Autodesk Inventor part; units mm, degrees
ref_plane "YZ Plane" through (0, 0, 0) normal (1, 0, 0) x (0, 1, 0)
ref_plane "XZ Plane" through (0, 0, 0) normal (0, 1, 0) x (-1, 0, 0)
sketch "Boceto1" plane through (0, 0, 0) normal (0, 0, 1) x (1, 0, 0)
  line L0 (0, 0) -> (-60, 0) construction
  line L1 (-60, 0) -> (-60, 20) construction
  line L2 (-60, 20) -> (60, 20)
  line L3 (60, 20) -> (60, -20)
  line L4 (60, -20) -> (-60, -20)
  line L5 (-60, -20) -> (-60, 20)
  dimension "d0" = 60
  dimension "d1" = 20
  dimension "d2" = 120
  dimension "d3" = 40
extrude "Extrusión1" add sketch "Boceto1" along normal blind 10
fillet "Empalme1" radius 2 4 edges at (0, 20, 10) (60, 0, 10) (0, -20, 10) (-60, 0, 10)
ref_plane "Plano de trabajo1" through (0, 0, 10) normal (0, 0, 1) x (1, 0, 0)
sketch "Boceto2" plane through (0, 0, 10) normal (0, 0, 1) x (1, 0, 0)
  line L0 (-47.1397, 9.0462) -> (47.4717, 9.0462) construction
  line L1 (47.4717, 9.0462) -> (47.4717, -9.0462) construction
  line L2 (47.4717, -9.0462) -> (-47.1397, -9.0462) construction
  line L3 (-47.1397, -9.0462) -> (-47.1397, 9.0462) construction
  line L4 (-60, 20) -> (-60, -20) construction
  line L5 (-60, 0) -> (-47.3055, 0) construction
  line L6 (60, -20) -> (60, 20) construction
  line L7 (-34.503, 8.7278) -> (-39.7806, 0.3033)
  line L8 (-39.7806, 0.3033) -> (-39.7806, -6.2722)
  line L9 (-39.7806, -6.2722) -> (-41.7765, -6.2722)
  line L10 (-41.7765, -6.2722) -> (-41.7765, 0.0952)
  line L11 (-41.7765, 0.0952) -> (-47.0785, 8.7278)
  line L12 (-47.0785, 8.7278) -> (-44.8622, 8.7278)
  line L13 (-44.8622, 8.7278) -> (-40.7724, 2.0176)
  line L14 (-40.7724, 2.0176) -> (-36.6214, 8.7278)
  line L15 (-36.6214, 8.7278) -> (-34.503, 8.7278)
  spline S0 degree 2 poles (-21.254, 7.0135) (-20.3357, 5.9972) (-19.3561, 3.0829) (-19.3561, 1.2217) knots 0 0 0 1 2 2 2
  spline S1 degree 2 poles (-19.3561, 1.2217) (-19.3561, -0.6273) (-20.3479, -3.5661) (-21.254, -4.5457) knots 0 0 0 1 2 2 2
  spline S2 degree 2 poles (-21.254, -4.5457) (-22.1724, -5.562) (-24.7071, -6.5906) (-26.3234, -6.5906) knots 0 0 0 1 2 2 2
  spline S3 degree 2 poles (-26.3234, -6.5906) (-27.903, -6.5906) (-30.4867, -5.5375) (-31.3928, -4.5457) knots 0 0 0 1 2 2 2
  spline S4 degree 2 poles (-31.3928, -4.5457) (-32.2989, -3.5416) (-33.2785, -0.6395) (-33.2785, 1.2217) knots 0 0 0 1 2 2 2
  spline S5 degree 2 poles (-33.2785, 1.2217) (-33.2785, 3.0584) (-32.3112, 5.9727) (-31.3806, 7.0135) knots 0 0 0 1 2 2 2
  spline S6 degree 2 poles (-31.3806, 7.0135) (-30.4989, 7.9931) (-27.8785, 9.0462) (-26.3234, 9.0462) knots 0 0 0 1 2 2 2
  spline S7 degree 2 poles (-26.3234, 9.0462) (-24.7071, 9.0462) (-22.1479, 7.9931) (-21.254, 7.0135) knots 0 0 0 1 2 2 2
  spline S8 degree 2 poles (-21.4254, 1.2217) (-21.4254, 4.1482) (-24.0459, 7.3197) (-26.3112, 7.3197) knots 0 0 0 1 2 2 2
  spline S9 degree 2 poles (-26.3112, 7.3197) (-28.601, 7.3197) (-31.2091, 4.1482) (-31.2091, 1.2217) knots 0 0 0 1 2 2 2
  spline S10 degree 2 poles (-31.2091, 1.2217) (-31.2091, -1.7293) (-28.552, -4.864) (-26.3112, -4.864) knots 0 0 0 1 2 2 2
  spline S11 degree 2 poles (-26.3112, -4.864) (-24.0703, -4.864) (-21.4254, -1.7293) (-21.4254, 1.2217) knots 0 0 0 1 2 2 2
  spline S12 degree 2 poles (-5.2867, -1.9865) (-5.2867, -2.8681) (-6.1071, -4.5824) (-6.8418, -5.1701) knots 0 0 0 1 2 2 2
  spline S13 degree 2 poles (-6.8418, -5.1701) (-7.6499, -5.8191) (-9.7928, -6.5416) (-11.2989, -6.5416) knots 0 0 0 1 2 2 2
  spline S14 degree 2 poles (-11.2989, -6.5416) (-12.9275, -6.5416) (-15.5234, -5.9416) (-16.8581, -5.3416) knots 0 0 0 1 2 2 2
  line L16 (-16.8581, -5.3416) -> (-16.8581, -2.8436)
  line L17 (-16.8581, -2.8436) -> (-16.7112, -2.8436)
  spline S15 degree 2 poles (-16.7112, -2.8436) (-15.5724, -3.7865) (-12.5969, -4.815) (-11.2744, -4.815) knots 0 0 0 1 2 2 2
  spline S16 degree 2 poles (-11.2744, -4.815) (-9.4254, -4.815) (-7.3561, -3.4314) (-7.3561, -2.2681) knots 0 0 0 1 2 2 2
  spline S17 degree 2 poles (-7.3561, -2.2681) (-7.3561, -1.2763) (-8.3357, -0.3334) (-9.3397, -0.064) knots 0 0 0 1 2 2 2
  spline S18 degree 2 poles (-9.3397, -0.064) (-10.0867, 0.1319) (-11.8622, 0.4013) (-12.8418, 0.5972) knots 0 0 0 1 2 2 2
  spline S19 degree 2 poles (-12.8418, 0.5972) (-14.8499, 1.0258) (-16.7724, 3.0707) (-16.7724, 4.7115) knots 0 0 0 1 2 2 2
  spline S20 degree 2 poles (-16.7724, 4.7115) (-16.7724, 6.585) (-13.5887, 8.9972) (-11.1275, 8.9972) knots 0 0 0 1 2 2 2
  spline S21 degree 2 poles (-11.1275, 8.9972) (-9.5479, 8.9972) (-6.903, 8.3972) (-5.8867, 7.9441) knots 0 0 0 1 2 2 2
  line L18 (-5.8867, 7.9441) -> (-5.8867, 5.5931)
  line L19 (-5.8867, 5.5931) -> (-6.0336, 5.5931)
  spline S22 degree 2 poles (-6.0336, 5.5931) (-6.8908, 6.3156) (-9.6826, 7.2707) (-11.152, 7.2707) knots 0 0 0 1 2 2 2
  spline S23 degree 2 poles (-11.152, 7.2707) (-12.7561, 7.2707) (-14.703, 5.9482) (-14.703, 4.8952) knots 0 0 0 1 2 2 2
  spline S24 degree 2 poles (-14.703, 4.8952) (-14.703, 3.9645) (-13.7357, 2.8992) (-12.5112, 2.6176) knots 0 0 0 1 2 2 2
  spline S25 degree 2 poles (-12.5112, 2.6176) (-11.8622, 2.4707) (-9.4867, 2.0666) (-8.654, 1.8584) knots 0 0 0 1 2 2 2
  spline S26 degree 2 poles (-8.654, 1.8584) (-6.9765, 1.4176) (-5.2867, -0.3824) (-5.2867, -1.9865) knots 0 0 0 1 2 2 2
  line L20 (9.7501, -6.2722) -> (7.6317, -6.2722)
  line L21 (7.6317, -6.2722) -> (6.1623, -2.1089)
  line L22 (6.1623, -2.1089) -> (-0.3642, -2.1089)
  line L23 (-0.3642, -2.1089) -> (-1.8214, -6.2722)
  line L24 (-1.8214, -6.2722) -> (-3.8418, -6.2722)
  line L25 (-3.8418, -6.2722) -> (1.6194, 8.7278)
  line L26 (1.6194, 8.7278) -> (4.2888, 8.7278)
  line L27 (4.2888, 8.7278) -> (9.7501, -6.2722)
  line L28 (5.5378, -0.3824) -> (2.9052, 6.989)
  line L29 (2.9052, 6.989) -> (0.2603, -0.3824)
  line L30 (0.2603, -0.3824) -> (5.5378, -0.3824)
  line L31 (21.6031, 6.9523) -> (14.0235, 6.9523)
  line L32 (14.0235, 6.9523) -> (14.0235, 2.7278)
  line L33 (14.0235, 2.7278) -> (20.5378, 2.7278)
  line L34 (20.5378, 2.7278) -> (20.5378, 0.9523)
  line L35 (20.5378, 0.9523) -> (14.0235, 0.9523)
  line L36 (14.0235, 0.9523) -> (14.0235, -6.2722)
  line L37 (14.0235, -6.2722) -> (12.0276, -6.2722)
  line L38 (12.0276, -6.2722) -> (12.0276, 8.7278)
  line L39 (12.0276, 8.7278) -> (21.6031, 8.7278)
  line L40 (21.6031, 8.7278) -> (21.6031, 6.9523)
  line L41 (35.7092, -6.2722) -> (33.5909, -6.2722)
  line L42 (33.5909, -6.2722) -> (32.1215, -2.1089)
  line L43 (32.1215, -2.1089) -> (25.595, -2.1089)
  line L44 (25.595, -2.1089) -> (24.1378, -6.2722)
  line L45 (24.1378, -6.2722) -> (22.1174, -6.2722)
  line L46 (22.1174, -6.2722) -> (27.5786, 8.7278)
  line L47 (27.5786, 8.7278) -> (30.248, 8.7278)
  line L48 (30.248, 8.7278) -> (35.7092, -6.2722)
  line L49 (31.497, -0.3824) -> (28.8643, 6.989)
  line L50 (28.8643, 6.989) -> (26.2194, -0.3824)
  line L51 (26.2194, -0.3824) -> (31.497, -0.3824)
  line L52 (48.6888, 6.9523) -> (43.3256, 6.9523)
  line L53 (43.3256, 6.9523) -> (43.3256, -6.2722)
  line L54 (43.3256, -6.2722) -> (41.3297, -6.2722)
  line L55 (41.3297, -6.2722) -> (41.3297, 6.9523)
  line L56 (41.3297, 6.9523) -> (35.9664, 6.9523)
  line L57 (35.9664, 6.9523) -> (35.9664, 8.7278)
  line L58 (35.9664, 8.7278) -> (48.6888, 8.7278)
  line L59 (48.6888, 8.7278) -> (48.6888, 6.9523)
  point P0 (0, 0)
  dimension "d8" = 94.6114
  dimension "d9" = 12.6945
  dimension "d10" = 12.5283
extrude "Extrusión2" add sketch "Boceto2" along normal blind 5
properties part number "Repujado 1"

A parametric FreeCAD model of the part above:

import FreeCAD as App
import Part
import Sketcher
from FreeCAD import Vector
Q = App.Units.Quantity


def edges_at(feature, points):
    """Names of the edges that pass closest to the given points."""
    edges = feature.Shape.Edges
    near = lambda p: min(range(len(edges)), key=lambda i: edges[i].distToShape(Part.Vertex(*p))[0])
    return sorted({f"Edge{near(p) + 1}" for p in points})


def add_polygon(sketch, points):
    """Adds a closed chain of lines whose ends are joined by coincident constraints."""
    first, n = sketch.GeometryCount, len(points)
    for a, b in zip(points, points[1:] + points[:1]):
        sketch.addGeometry(Part.LineSegment(App.Vector(*a, 0), App.Vector(*b, 0)), False)
    for i in range(n):
        sketch.addConstraint(Sketcher.Constraint("Coincident", first + i, 2, first + (i + 1) % n, 1))

doc = App.newDocument("Part")
body = doc.addObject("PartDesign::Body", "Body")

# Sketch on XY plane
sketch1 = body.newObject("Sketcher::SketchObject", "Sketch")
sketch1.AttachmentSupport = (doc.getObject("XY_Plane"), [""])
sketch1.MapMode = "FlatFace"
add_polygon(sketch1, [(60, 20), (-60, 20), (-60, -20), (60, -20)])  # lines 0-3
sketch1.addConstraint(Sketcher.Constraint("Horizontal", 0))
sketch1.addConstraint(Sketcher.Constraint("Vertical", 1))
sketch1.addConstraint(Sketcher.Constraint("Horizontal", 2))
sketch1.addConstraint(Sketcher.Constraint("Vertical", 3))
sketch1.addConstraint(Sketcher.Constraint("Symmetric", 0, 2, 2, 2, -1, 1))
sketch1.addConstraint(Sketcher.Constraint("DistanceX", 0, 2, 0, 1, 120.0))
sketch1.addConstraint(Sketcher.Constraint("DistanceY", 1, 2, 1, 1, 40.0))
pad1 = body.newObject("PartDesign::Pad", "Pad")
pad1.Profile = sketch1
pad1.Length = 10
doc.recompute()

fillet = body.newObject("PartDesign::Fillet", "Fillet")
fillet.Base = (pad1, edges_at(pad1, [
    (0, 20, 10),
    (60, 0, 10),
    (0, -20, 10),
    (-60, 0, 10),
]))
fillet.Radius = 2

# Sketch on XY plane
sketch2 = body.newObject("Sketcher::SketchObject", "Sketch001")
sketch2.AttachmentSupport = (doc.getObject("XY_Plane"), [""])
sketch2.MapMode = "FlatFace"
sketch2.AttachmentOffset = App.Placement(Vector(0, 0, 10), App.Rotation())
add_polygon(sketch2, [(-39.7806, 0.3033), (-34.503, 8.7278), (-36.6214, 8.7278), (-40.7724, 2.0176), (-44.8622, 8.7278), (-47.0785, 8.7278), (-41.7765, 0.0952), (-41.7765, -6.2722), (-39.7806, -6.2722)])  # lines 0-8
sketch2.addGeometry(Part.BSplineCurve([Vector(-21.254, 7.0135, 0), Vector(-20.3357, 5.9972, 0), Vector(-19.3561, 3.0829, 0), Vector(-19.3561, 1.2217, 0)], [3, 1, 3], [0, 1, 2], False, 2, [1, 1, 1, 1], False), False)  # 9
sketch2.addGeometry(Part.BSplineCurve([Vector(-26.3234, 9.0462, 0), Vector(-24.7071, 9.0462, 0), Vector(-22.1479, 7.9931, 0), Vector(-21.254, 7.0135, 0)], [3, 1, 3], [0, 1, 2], False, 2, [1, 1, 1, 1], False), False)  # 10
sketch2.addGeometry(Part.BSplineCurve([Vector(-31.3806, 7.0135, 0), Vector(-30.4989, 7.9931, 0), Vector(-27.8785, 9.0462, 0), Vector(-26.3234, 9.0462, 0)], [3, 1, 3], [0, 1, 2], False, 2, [1, 1, 1, 1], False), False)  # 11
sketch2.addGeometry(Part.BSplineCurve([Vector(-33.2785, 1.2217, 0), Vector(-33.2785, 3.0584, 0), Vector(-32.3112, 5.9727, 0), Vector(-31.3806, 7.0135, 0)], [3, 1, 3], [0, 1, 2], False, 2, [1, 1, 1, 1], False), False)  # 12
sketch2.addGeometry(Part.BSplineCurve([Vector(-31.3928, -4.5457, 0), Vector(-32.2989, -3.5416, 0), Vector(-33.2785, -0.6395, 0), Vector(-33.2785, 1.2217, 0)], [3, 1, 3], [0, 1, 2], False, 2, [1, 1, 1, 1], False), False)  # 13
sketch2.addGeometry(Part.BSplineCurve([Vector(-26.3234, -6.5906, 0), Vector(-27.903, -6.5906, 0), Vector(-30.4867, -5.5375, 0), Vector(-31.3928, -4.5457, 0)], [3, 1, 3], [0, 1, 2], False, 2, [1, 1, 1, 1], False), False)  # 14
sketch2.addGeometry(Part.BSplineCurve([Vector(-21.254, -4.5457, 0), Vector(-22.1724, -5.562, 0), Vector(-24.7071, -6.5906, 0), Vector(-26.3234, -6.5906, 0)], [3, 1, 3], [0, 1, 2], False, 2, [1, 1, 1, 1], False), False)  # 15
sketch2.addGeometry(Part.BSplineCurve([Vector(-19.3561, 1.2217, 0), Vector(-19.3561, -0.6273, 0), Vector(-20.3479, -3.5661, 0), Vector(-21.254, -4.5457, 0)], [3, 1, 3], [0, 1, 2], False, 2, [1, 1, 1, 1], False), False)  # 16
sketch2.addGeometry(Part.BSplineCurve([Vector(-21.4254, 1.2217, 0), Vector(-21.4254, 4.1482, 0), Vector(-24.0459, 7.3197, 0), Vector(-26.3112, 7.3197, 0)], [3, 1, 3], [0, 1, 2], False, 2, [1, 1, 1, 1], False), False)  # 17
sketch2.addGeometry(Part.BSplineCurve([Vector(-26.3112, -4.864, 0), Vector(-24.0703, -4.864, 0), Vector(-21.4254, -1.7293, 0), Vector(-21.4254, 1.2217, 0)], [3, 1, 3], [0, 1, 2], False, 2, [1, 1, 1, 1], False), False)  # 18
sketch2.addGeometry(Part.BSplineCurve([Vector(-31.2091, 1.2217, 0), Vector(-31.2091, -1.7293, 0), Vector(-28.552, -4.864, 0), Vector(-26.3112, -4.864, 0)], [3, 1, 3], [0, 1, 2], False, 2, [1, 1, 1, 1], False), False)  # 19
sketch2.addGeometry(Part.BSplineCurve([Vector(-26.3112, 7.3197, 0), Vector(-28.601, 7.3197, 0), Vector(-31.2091, 4.1482, 0), Vector(-31.2091, 1.2217, 0)], [3, 1, 3], [0, 1, 2], False, 2, [1, 1, 1, 1], False), False)  # 20
sketch2.addGeometry(Part.BSplineCurve([Vector(-5.2867, -1.9865, 0), Vector(-5.2867, -2.8681, 0), Vector(-6.1071, -4.5824, 0), Vector(-6.8418, -5.1701, 0)], [3, 1, 3], [0, 1, 2], False, 2, [1, 1, 1, 1], False), False)  # 21
sketch2.addGeometry(Part.BSplineCurve([Vector(-8.654, 1.8584, 0), Vector(-6.9765, 1.4176, 0), Vector(-5.2867, -0.3824, 0), Vector(-5.2867, -1.9865, 0)], [3, 1, 3], [0, 1, 2], False, 2, [1, 1, 1, 1], False), False)  # 22
sketch2.addGeometry(Part.BSplineCurve([Vector(-12.5112, 2.6176, 0), Vector(-11.8622, 2.4707, 0), Vector(-9.4867, 2.0666, 0), Vector(-8.654, 1.8584, 0)], [3, 1, 3], [0, 1, 2], False, 2, [1, 1, 1, 1], False), False)  # 23
sketch2.addGeometry(Part.BSplineCurve([Vector(-14.703, 4.8952, 0), Vector(-14.703, 3.9645, 0), Vector(-13.7357, 2.8992, 0), Vector(-12.5112, 2.6176, 0)], [3, 1, 3], [0, 1, 2], False, 2, [1, 1, 1, 1], False), False)  # 24
sketch2.addGeometry(Part.BSplineCurve([Vector(-11.152, 7.2707, 0), Vector(-12.7561, 7.2707, 0), Vector(-14.703, 5.9482, 0), Vector(-14.703, 4.8952, 0)], [3, 1, 3], [0, 1, 2], False, 2, [1, 1, 1, 1], False), False)  # 25
sketch2.addGeometry(Part.BSplineCurve([Vector(-6.0336, 5.5931, 0), Vector(-6.8908, 6.3156, 0), Vector(-9.6826, 7.2707, 0), Vector(-11.152, 7.2707, 0)], [3, 1, 3], [0, 1, 2], False, 2, [1, 1, 1, 1], False), False)  # 26
sketch2.addGeometry(Part.LineSegment(Vector(-6.0336, 5.5931, 0), Vector(-5.8867, 5.5931, 0)), False)  # 27
sketch2.addGeometry(Part.LineSegment(Vector(-5.8867, 5.5931, 0), Vector(-5.8867, 7.9441, 0)), False)  # 28
sketch2.addGeometry(Part.BSplineCurve([Vector(-11.1275, 8.9972, 0), Vector(-9.5479, 8.9972, 0), Vector(-6.903, 8.3972, 0), Vector(-5.8867, 7.9441, 0)], [3, 1, 3], [0, 1, 2], False, 2, [1, 1, 1, 1], False), False)  # 29
sketch2.addGeometry(Part.BSplineCurve([Vector(-16.7724, 4.7115, 0), Vector(-16.7724, 6.585, 0), Vector(-13.5887, 8.9972, 0), Vector(-11.1275, 8.9972, 0)], [3, 1, 3], [0, 1, 2], False, 2, [1, 1, 1, 1], False), False)  # 30
sketch2.addGeometry(Part.BSplineCurve([Vector(-12.8418, 0.5972, 0), Vector(-14.8499, 1.0258, 0), Vector(-16.7724, 3.0707, 0), Vector(-16.7724, 4.7115, 0)], [3, 1, 3], [0, 1, 2], False, 2, [1, 1, 1, 1], False), False)  # 31
sketch2.addGeometry(Part.BSplineCurve([Vector(-9.3397, -0.064, 0), Vector(-10.0867, 0.1319, 0), Vector(-11.8622, 0.4013, 0), Vector(-12.8418, 0.5972, 0)], [3, 1, 3], [0, 1, 2], False, 2, [1, 1, 1, 1], False), False)  # 32
sketch2.addGeometry(Part.BSplineCurve([Vector(-7.3561, -2.2681, 0), Vector(-7.3561, -1.2763, 0), Vector(-8.3357, -0.3334, 0), Vector(-9.3397, -0.064, 0)], [3, 1, 3], [0, 1, 2], False, 2, [1, 1, 1, 1], False), False)  # 33
sketch2.addGeometry(Part.BSplineCurve([Vector(-11.2744, -4.815, 0), Vector(-9.4254, -4.815, 0), Vector(-7.3561, -3.4314, 0), Vector(-7.3561, -2.2681, 0)], [3, 1, 3], [0, 1, 2], False, 2, [1, 1, 1, 1], False), False)  # 34
sketch2.addGeometry(Part.BSplineCurve([Vector(-16.7112, -2.8436, 0), Vector(-15.5724, -3.7865, 0), Vector(-12.5969, -4.815, 0), Vector(-11.2744, -4.815, 0)], [3, 1, 3], [0, 1, 2], False, 2, [1, 1, 1, 1], False), False)  # 35
sketch2.addGeometry(Part.LineSegment(Vector(-16.7112, -2.8436, 0), Vector(-16.8581, -2.8436, 0)), False)  # 36
sketch2.addGeometry(Part.LineSegment(Vector(-16.8581, -2.8436, 0), Vector(-16.8581, -5.3416, 0)), False)  # 37
sketch2.addGeometry(Part.BSplineCurve([Vector(-11.2989, -6.5416, 0), Vector(-12.9275, -6.5416, 0), Vector(-15.5234, -5.9416, 0), Vector(-16.8581, -5.3416, 0)], [3, 1, 3], [0, 1, 2], False, 2, [1, 1, 1, 1], False), False)  # 38
sketch2.addGeometry(Part.BSplineCurve([Vector(-6.8418, -5.1701, 0), Vector(-7.6499, -5.8191, 0), Vector(-9.7928, -6.5416, 0), Vector(-11.2989, -6.5416, 0)], [3, 1, 3], [0, 1, 2], False, 2, [1, 1, 1, 1], False), False)  # 39
add_polygon(sketch2, [(7.6317, -6.2722), (9.7501, -6.2722), (4.2888, 8.7278), (1.6194, 8.7278), (-3.8418, -6.2722), (-1.8214, -6.2722), (-0.3642, -2.1089), (6.1623, -2.1089)])  # lines 40-47
add_polygon(sketch2, [(2.9052, 6.989), (5.5378, -0.3824), (0.2603, -0.3824)])  # lines 48-50
add_polygon(sketch2, [(14.0235, 6.9523), (21.6031, 6.9523), (21.6031, 8.7278), (12.0276, 8.7278), (12.0276, -6.2722), (14.0235, -6.2722), (14.0235, 0.9523), (20.5378, 0.9523), (20.5378, 2.7278), (14.0235, 2.7278)])  # lines 51-60
add_polygon(sketch2, [(33.5909, -6.2722), (35.7092, -6.2722), (30.248, 8.7278), (27.5786, 8.7278), (22.1174, -6.2722), (24.1378, -6.2722), (25.595, -2.1089), (32.1215, -2.1089)])  # lines 61-68
add_polygon(sketch2, [(28.8643, 6.989), (31.497, -0.3824), (26.2194, -0.3824)])  # lines 69-71
add_polygon(sketch2, [(43.3256, 6.9523), (48.6888, 6.9523), (48.6888, 8.7278), (35.9664, 8.7278), (35.9664, 6.9523), (41.3297, 6.9523), (41.3297, -6.2722), (43.3256, -6.2722)])  # lines 72-79
sketch2.addConstraint(Sketcher.Constraint("Block", 9))
sketch2.addConstraint(Sketcher.Constraint("Block", 10))
sketch2.addConstraint(Sketcher.Constraint("Block", 11))
sketch2.addConstraint(Sketcher.Constraint("Block", 12))
sketch2.addConstraint(Sketcher.Constraint("Block", 13))
sketch2.addConstraint(Sketcher.Constraint("Block", 14))
sketch2.addConstraint(Sketcher.Constraint("Block", 15))
sketch2.addConstraint(Sketcher.Constraint("Block", 16))
sketch2.addConstraint(Sketcher.Constraint("Block", 17))
sketch2.addConstraint(Sketcher.Constraint("Block", 18))
sketch2.addConstraint(Sketcher.Constraint("Block", 19))
sketch2.addConstraint(Sketcher.Constraint("Block", 20))
sketch2.addConstraint(Sketcher.Constraint("Block", 21))
sketch2.addConstraint(Sketcher.Constraint("Block", 22))
sketch2.addConstraint(Sketcher.Constraint("Block", 23))
sketch2.addConstraint(Sketcher.Constraint("Block", 24))
sketch2.addConstraint(Sketcher.Constraint("Block", 25))
sketch2.addConstraint(Sketcher.Constraint("Block", 26))
sketch2.addConstraint(Sketcher.Constraint("Block", 29))
sketch2.addConstraint(Sketcher.Constraint("Block", 30))
sketch2.addConstraint(Sketcher.Constraint("Block", 31))
sketch2.addConstraint(Sketcher.Constraint("Block", 32))
sketch2.addConstraint(Sketcher.Constraint("Block", 33))
sketch2.addConstraint(Sketcher.Constraint("Block", 34))
sketch2.addConstraint(Sketcher.Constraint("Block", 35))
sketch2.addConstraint(Sketcher.Constraint("Block", 38))
sketch2.addConstraint(Sketcher.Constraint("Block", 39))
sketch2.addConstraint(Sketcher.Constraint("Coincident", 26, 1, 27, 1))
sketch2.addConstraint(Sketcher.Constraint("Coincident", 27, 2, 28, 1))
sketch2.addConstraint(Sketcher.Constraint("Coincident", 28, 2, 29, 2))
sketch2.addConstraint(Sketcher.Constraint("Coincident", 35, 1, 36, 1))
sketch2.addConstraint(Sketcher.Constraint("Coincident", 36, 2, 37, 1))
sketch2.addConstraint(Sketcher.Constraint("Coincident", 37, 2, 38, 2))
sketch2.addConstraint(Sketcher.Constraint("Horizontal", 1))
sketch2.addConstraint(Sketcher.Constraint("Horizontal", 4))
sketch2.addConstraint(Sketcher.Constraint("Vertical", 6))
sketch2.addConstraint(Sketcher.Constraint("Horizontal", 7))
sketch2.addConstraint(Sketcher.Constraint("Vertical", 8))
sketch2.addConstraint(Sketcher.Constraint("Horizontal", 27))
sketch2.addConstraint(Sketcher.Constraint("Vertical", 28))
sketch2.addConstraint(Sketcher.Constraint("Horizontal", 36))
sketch2.addConstraint(Sketcher.Constraint("Vertical", 37))
sketch2.addConstraint(Sketcher.Constraint("Horizontal", 40))
sketch2.addConstraint(Sketcher.Constraint("Horizontal", 42))
sketch2.addConstraint(Sketcher.Constraint("Horizontal", 44))
sketch2.addConstraint(Sketcher.Constraint("Horizontal", 46))
sketch2.addConstraint(Sketcher.Constraint("Horizontal", 49))
sketch2.addConstraint(Sketcher.Constraint("Horizontal", 51))
sketch2.addConstraint(Sketcher.Constraint("Vertical", 52))
sketch2.addConstraint(Sketcher.Constraint("Horizontal", 53))
sketch2.addConstraint(Sketcher.Constraint("Vertical", 54))
sketch2.addConstraint(Sketcher.Constraint("Horizontal", 55))
sketch2.addConstraint(Sketcher.Constraint("Vertical", 56))
sketch2.addConstraint(Sketcher.Constraint("Horizontal", 57))
sketch2.addConstraint(Sketcher.Constraint("Vertical", 58))
sketch2.addConstraint(Sketcher.Constraint("Horizontal", 59))
sketch2.addConstraint(Sketcher.Constraint("Vertical", 60))
sketch2.addConstraint(Sketcher.Constraint("Horizontal", 61))
sketch2.addConstraint(Sketcher.Constraint("Horizontal", 63))
sketch2.addConstraint(Sketcher.Constraint("Horizontal", 65))
sketch2.addConstraint(Sketcher.Constraint("Horizontal", 67))
sketch2.addConstraint(Sketcher.Constraint("Horizontal", 70))
sketch2.addConstraint(Sketcher.Constraint("Horizontal", 72))
sketch2.addConstraint(Sketcher.Constraint("Vertical", 73))
sketch2.addConstraint(Sketcher.Constraint("Horizontal", 74))
sketch2.addConstraint(Sketcher.Constraint("Vertical", 75))
sketch2.addConstraint(Sketcher.Constraint("Horizontal", 76))
sketch2.addConstraint(Sketcher.Constraint("Vertical", 77))
sketch2.addConstraint(Sketcher.Constraint("Horizontal", 78))
sketch2.addConstraint(Sketcher.Constraint("Vertical", 79))
sketch2.addConstraint(Sketcher.Constraint("Parallel", 41, 62))
sketch2.addConstraint(Sketcher.Constraint("Parallel", 43, 64))
sketch2.addConstraint(Sketcher.Constraint("Parallel", 45, 66))
sketch2.addConstraint(Sketcher.Constraint("Parallel", 47, 68))
sketch2.addConstraint(Sketcher.Constraint("Parallel", 48, 69))
sketch2.addConstraint(Sketcher.Constraint("Parallel", 50, 71))
sketch2.addConstraint(Sketcher.Constraint("Horizontal", 1, 2, 3, 2))
sketch2.addConstraint(Sketcher.Constraint("Horizontal", 7, 2, 40, 2))
sketch2.addConstraint(Sketcher.Constraint("Horizontal", 4, 2, 41, 2))
sketch2.addConstraint(Sketcher.Constraint("Horizontal", 40, 2, 43, 2))
sketch2.addConstraint(Sketcher.Constraint("Horizontal", 42, 2, 52, 2))
sketch2.addConstraint(Sketcher.Constraint("Horizontal", 47, 2, 54, 2))
sketch2.addConstraint(Sketcher.Constraint("Horizontal", 55, 2, 61, 2))
sketch2.addConstraint(Sketcher.Constraint("Horizontal", 53, 2, 62, 2))
sketch2.addConstraint(Sketcher.Constraint("Horizontal", 61, 2, 64, 2))
sketch2.addConstraint(Sketcher.Constraint("Horizontal", 46, 2, 66, 2))
sketch2.addConstraint(Sketcher.Constraint("Horizontal", 49, 2, 69, 2))
sketch2.addConstraint(Sketcher.Constraint("Horizontal", 50, 2, 71, 2))
sketch2.addConstraint(Sketcher.Constraint("Horizontal", 60, 2, 72, 2))
sketch2.addConstraint(Sketcher.Constraint("Horizontal", 63, 2, 73, 2))
sketch2.addConstraint(Sketcher.Constraint("Horizontal", 72, 2, 75, 2))
sketch2.addConstraint(Sketcher.Constraint("Horizontal", 68, 2, 77, 2))
sketch2.addConstraint(Sketcher.Constraint("Vertical", 56, 2, 59, 2))
sketch2.addConstraint(Sketcher.Constraint("Equal", 1, 40))
sketch2.addConstraint(Sketcher.Constraint("Equal", 7, 55))
sketch2.addConstraint(Sketcher.Constraint("Equal", 40, 61))
sketch2.addConstraint(Sketcher.Constraint("Equal", 42, 63))
sketch2.addConstraint(Sketcher.Constraint("Equal", 44, 65))
sketch2.addConstraint(Sketcher.Constraint("Equal", 72, 76))
sketch2.addConstraint(Sketcher.Constraint("Equal", 55, 78))
sketch2.addConstraint(Sketcher.Constraint("Equal", 52, 58))
sketch2.addConstraint(Sketcher.Constraint("Equal", 41, 43))
sketch2.addConstraint(Sketcher.Constraint("DistanceY", 54, 2, 54, 1, 15.0))
sketch2.addConstraint(Sketcher.Constraint("DistanceY", 57, 2, 51, 2, 6.0))
sketch2.addConstraint(Sketcher.Constraint("Angle", 45, Q("70.7094 deg")))
sketch2.addConstraint(Sketcher.Constraint("Angle", 47, Q("-70.56 deg")))
sketch2.addConstraint(Sketcher.Constraint("DistanceX", 57, 2, 65, 2, 3.6))
sketch2.addConstraint(Sketcher.Constraint("DistanceX", 7, 1, 7, 2, 1.996))
sketch2.addConstraint(Sketcher.Constraint("DistanceX", -1, 1, 40, 2, 9.75))
sketch2.addConstraint(Sketcher.Constraint("Distance", 0, 9.941))
sketch2.addConstraint(Sketcher.Constraint("Distance", 45, 4.411))
sketch2.addConstraint(Sketcher.Constraint("DistanceX", 1, 2, 1, 1, 2.1184))
sketch2.addConstraint(Sketcher.Constraint("DistanceX", 4, 2, 4, 1, 2.2163))
sketch2.addConstraint(Sketcher.Constraint("DistanceX", 42, 2, 42, 1, 2.6694))
sketch2.addConstraint(Sketcher.Constraint("DistanceX", 44, 1, 44, 2, 2.0204))
sketch2.addConstraint(Sketcher.Constraint("DistanceX", 46, 1, 46, 2, 6.5265))
sketch2.addConstraint(Sketcher.Constraint("DistanceX", 49, 2, 49, 1, 5.2775))
sketch2.addConstraint(Sketcher.Constraint("DistanceX", 51, 1, 51, 2, 7.5796))
sketch2.addConstraint(Sketcher.Constraint("DistanceX", 57, 1, 57, 2, 6.5143))
sketch2.addConstraint(Sketcher.Constraint("DistanceX", 72, 1, 72, 2, 5.3632))
sketch2.addConstraint(Sketcher.Constraint("DistanceY", 6, 2, 6, 1, 6.3674))
sketch2.addConstraint(Sketcher.Constraint("DistanceY", 8, 1, 8, 2, 6.5755))
sketch2.addConstraint(Sketcher.Constraint("DistanceY", 52, 1, 52, 2, 1.7755))
sketch2.addConstraint(Sketcher.Constraint("DistanceX", 0, 2, -1, 1, 34.503))
sketch2.addConstraint(Sketcher.Constraint("DistanceY", 45, 2, -1, 1, 2.109))
sketch2.addConstraint(Sketcher.Constraint("DistanceY", -1, 1, 50, 2, 6.989))
sketch2.addConstraint(Sketcher.Constraint("DistanceX", -1, 1, 51, 2, 21.603))
sketch2.addConstraint(Sketcher.Constraint("DistanceX", -1, 1, 69, 2, 31.497))
sketch2.addConstraint(Sketcher.Constraint("DistanceX", 2, 2, 1, 2, 4.151))
sketch2.addConstraint(Sketcher.Constraint("DistanceX", 4, 2, 2, 2, 6.306))
sketch2.addConstraint(Sketcher.Constraint("DistanceX", 45, 2, 48, 2, 5.902))
sketch2.addConstraint(Sketcher.Constraint("DistanceX", 49, 2, 50, 2, 2.645))
sketch2.addConstraint(Sketcher.Constraint("DistanceX", 71, 2, 74, 2, 7.102))
sketch2.addConstraint(Sketcher.Constraint("Distance", 2, 7.8903))
sketch2.addConstraint(Sketcher.Constraint("Distance", 48, 7.8274))
pad2 = body.newObject("PartDesign::Pad", "Pad001")
pad2.Profile = sketch2
pad2.Length = 5

doc.recompute()
